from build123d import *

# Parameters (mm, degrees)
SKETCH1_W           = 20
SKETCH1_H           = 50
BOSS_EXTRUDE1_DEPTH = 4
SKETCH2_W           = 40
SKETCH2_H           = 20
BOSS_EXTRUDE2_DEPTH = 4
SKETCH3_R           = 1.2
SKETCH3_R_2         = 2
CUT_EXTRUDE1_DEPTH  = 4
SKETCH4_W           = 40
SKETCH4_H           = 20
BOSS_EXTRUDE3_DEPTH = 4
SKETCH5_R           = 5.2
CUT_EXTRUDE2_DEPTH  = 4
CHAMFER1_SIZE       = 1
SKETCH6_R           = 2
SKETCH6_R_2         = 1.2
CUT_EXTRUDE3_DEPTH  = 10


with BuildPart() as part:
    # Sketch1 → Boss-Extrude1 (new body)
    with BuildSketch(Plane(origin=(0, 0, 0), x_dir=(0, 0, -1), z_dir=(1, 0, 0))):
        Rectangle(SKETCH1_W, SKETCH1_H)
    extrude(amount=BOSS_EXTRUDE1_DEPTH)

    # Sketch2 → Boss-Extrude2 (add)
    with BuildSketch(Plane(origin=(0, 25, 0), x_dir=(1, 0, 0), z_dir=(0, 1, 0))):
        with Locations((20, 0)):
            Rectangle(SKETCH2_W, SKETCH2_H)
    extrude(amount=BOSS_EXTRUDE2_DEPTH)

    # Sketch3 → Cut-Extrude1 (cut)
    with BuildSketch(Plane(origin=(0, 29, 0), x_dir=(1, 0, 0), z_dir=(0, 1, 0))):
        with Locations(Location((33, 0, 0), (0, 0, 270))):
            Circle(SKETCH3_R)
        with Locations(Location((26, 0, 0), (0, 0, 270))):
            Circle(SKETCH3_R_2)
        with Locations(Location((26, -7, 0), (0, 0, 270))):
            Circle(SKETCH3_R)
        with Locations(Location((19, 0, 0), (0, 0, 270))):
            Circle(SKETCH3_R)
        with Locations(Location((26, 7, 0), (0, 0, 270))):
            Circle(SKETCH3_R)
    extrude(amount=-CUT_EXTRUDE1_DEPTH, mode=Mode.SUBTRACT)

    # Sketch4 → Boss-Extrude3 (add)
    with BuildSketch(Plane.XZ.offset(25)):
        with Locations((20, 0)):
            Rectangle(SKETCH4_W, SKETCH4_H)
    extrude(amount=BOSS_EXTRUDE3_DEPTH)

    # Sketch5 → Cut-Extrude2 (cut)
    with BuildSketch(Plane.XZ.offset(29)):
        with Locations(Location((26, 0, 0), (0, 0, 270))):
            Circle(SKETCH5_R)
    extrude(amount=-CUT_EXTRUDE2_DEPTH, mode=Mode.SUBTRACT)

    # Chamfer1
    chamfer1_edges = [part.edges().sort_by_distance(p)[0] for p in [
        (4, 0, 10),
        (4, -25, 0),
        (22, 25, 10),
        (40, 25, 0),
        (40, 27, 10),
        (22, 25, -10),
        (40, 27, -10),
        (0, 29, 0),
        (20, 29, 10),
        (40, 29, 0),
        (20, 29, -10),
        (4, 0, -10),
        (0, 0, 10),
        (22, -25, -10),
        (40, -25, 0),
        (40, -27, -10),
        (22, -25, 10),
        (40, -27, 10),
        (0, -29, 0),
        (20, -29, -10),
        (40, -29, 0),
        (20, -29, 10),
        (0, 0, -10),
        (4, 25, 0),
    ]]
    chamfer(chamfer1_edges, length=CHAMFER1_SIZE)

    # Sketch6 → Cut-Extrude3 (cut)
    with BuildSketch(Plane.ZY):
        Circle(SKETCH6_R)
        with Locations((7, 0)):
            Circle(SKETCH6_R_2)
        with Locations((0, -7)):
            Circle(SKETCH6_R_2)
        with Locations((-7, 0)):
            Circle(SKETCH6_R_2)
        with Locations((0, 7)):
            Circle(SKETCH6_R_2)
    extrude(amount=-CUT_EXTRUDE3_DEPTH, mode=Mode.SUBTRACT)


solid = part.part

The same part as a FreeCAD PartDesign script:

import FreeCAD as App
import Part
import Sketcher
Q = App.Units.Quantity


def edges_at(feature, points):
    """Names of the edges that pass closest to the given points."""
    edges = feature.Shape.Edges
    near = lambda p: min(range(len(edges)), key=lambda i: edges[i].distToShape(Part.Vertex(*p))[0])
    return sorted({f"Edge{near(p) + 1}" for p in points})


def add_polygon(sketch, points):
    """Adds a closed chain of lines whose ends are joined by coincident constraints."""
    first, n = sketch.GeometryCount, len(points)
    for a, b in zip(points, points[1:] + points[:1]):
        sketch.addGeometry(Part.LineSegment(App.Vector(*a, 0), App.Vector(*b, 0)), False)
    for i in range(n):
        sketch.addConstraint(Sketcher.Constraint("Coincident", first + i, 2, first + (i + 1) % n, 1))

doc = App.newDocument("Part")
params = doc.addObject("Spreadsheet::Sheet", "Params")
for row, (alias, value) in enumerate([
    ("sketch1_width", "50 mm"),
    ("sketch1_height", "20 mm"),
    ("pad1_length", "4 mm"),
    ("sketch2_width", "40 mm"),
    ("sketch2_height", "20 mm"),
    ("pad2_length", "4 mm"),
    ("sketch3_diameter", "4 mm"),
    ("sketch3_diameter2", "2.4 mm"),
    ("pocket1_length", "4 mm"),
    ("sketch4_width", "40 mm"),
    ("sketch4_height", "20 mm"),
    ("pad3_length", "4 mm"),
    ("sketch5_diameter", "10.4 mm"),
    ("pocket2_length", "4 mm"),
    ("chamfer_size", "1 mm"),
    ("sketch6_diameter", "4 mm"),
    ("sketch6_diameter2", "2.4 mm"),
    ("pocket3_length", "10 mm"),
], start=1):
    params.set(f"A{row}", alias)
    params.set(f"B{row}", "=" + value)
    params.setAlias(f"B{row}", alias)

body = doc.addObject("PartDesign::Body", "Body")

# Sketch on YZ plane
sketch1 = doc.addObject("Sketcher::SketchObject", "Sketch")
body.addObject(sketch1)
sketch1.AttachmentSupport = (doc.YZ_Plane, [""])
sketch1.MapMode = "FlatFace"
add_polygon(sketch1, [(25, 10), (-25, 10), (-25, -10), (25, -10)])  # lines 0-3
sketch1.addConstraint([
    Sketcher.Constraint("Horizontal", 0),
    Sketcher.Constraint("Vertical", 1),
    Sketcher.Constraint("Horizontal", 2),
    Sketcher.Constraint("Vertical", 3),
    Sketcher.Constraint("Symmetric", 0, 2, 2, 2, -1, 1),
    Sketcher.Constraint("DistanceX", 0, 2, 0, 1, Q("50 mm")),
    Sketcher.Constraint("DistanceY", 1, 2, 1, 1, Q("20 mm")),
])
sketch1.setExpression("Constraints[9]", "Params.sketch1_width")
sketch1.setExpression("Constraints[10]", "Params.sketch1_height")
pad1 = doc.addObject("PartDesign::Pad", "Pad")
body.addObject(pad1)
pad1.Profile = sketch1
pad1.setExpression("Length", "Params.pad1_length")

# Sketch on XZ plane
sketch2 = doc.addObject("Sketcher::SketchObject", "Sketch001")
body.addObject(sketch2)
sketch2.AttachmentSupport = (doc.XZ_Plane, [""])
sketch2.MapMode = "FlatFace"
sketch2.AttachmentOffset = App.Placement(App.Vector(0, 0, -25), App.Rotation())
add_polygon(sketch2, [(0, -10), (0, 10), (40, 10), (40, -10)])  # lines 0-3
sketch2.addConstraint([
    Sketcher.Constraint("Vertical", 0),
    Sketcher.Constraint("Horizontal", 1),
    Sketcher.Constraint("Vertical", 2),
    Sketcher.Constraint("Horizontal", 3),
    Sketcher.Constraint("Symmetric", 0, 2, 3, 2, -1, 1),
    Sketcher.Constraint("DistanceX", 1, 1, 1, 2, Q("40 mm")),
    Sketcher.Constraint("DistanceY", 0, 1, 0, 2, Q("20 mm")),
])
sketch2.setExpression("Constraints[9]", "Params.sketch2_width")
sketch2.setExpression("Constraints[10]", "Params.sketch2_height")
pad2 = doc.addObject("PartDesign::Pad", "Pad001")
body.addObject(pad2)
pad2.Profile = sketch2
pad2.setExpression("Length", "Params.pad2_length")
pad2.Reversed = True

# Sketch on XZ plane
sketch3 = doc.addObject("Sketcher::SketchObject", "Sketch002")
body.addObject(sketch3)
sketch3.AttachmentSupport = (doc.XZ_Plane, [""])
sketch3.MapMode = "FlatFace"
sketch3.AttachmentOffset = App.Placement(App.Vector(0, 0, -29), App.Rotation())
sketch3.addGeometry([
    Part.Circle(App.Vector(33, 0, 0), App.Vector(0, 0, 1), 1.2),  # 0
    Part.Circle(App.Vector(26, 0, 0), App.Vector(0, 0, 1), 2),  # 1
    Part.Circle(App.Vector(26, 7, 0), App.Vector(0, 0, 1), 1.2),  # 2
    Part.Circle(App.Vector(19, 0, 0), App.Vector(0, 0, 1), 1.2),  # 3
    Part.Circle(App.Vector(26, -7, 0), App.Vector(0, 0, 1), 1.2),  # 4
], False)
sketch3.addConstraint([
    Sketcher.Constraint("Equal", 0, 2),
    Sketcher.Constraint("Equal", 2, 3),
    Sketcher.Constraint("Equal", 3, 4),
    Sketcher.Constraint("Symmetric", 2, 3, 4, 3, -1),
    Sketcher.Constraint("PointOnObject", 0, 3, -1),
    Sketcher.Constraint("PointOnObject", 1, 3, -1),
    Sketcher.Constraint("PointOnObject", 3, 3, -1),
    Sketcher.Constraint("Vertical", 1, 3, 2, 3),
    Sketcher.Constraint("Diameter", 1, Q("4 mm")),
    Sketcher.Constraint("Diameter", 0, Q("2.4 mm")),
    Sketcher.Constraint("DistanceX", -1, 1, 0, 3, Q("33 mm")),
    Sketcher.Constraint("DistanceX", -1, 1, 1, 3, Q("26 mm")),
    Sketcher.Constraint("DistanceY", -1, 1, 2, 3, Q("7 mm")),
    Sketcher.Constraint("DistanceX", -1, 1, 3, 3, Q("19 mm")),
])
sketch3.setExpression("Constraints[8]", "Params.sketch3_diameter")
sketch3.setExpression("Constraints[9]", "Params.sketch3_diameter2")
pocket1 = doc.addObject("PartDesign::Pocket", "Pocket")
body.addObject(pocket1)
pocket1.Profile = sketch3
pocket1.setExpression("Length", "Params.pocket1_length")
pocket1.Reversed = True

# Sketch on XZ plane
sketch4 = doc.addObject("Sketcher::SketchObject", "Sketch003")
body.addObject(sketch4)
sketch4.AttachmentSupport = (doc.XZ_Plane, [""])
sketch4.MapMode = "FlatFace"
sketch4.AttachmentOffset = App.Placement(App.Vector(0, 0, 25), App.Rotation())
add_polygon(sketch4, [(0, 10), (0, -10), (40, -10), (40, 10)])  # lines 0-3
sketch4.addConstraint([
    Sketcher.Constraint("Vertical", 0),
    Sketcher.Constraint("Horizontal", 1),
    Sketcher.Constraint("Vertical", 2),
    Sketcher.Constraint("Horizontal", 3),
    Sketcher.Constraint("Symmetric", 0, 2, 3, 2, -1, 1),
    Sketcher.Constraint("DistanceX", 1, 1, 1, 2, Q("40 mm")),
    Sketcher.Constraint("DistanceY", 0, 2, 0, 1, Q("20 mm")),
])
sketch4.setExpression("Constraints[9]", "Params.sketch4_width")
sketch4.setExpression("Constraints[10]", "Params.sketch4_height")
pad3 = doc.addObject("PartDesign::Pad", "Pad002")
body.addObject(pad3)
pad3.Profile = sketch4
pad3.setExpression("Length", "Params.pad3_length")

# Sketch on XZ plane
sketch5 = doc.addObject("Sketcher::SketchObject", "Sketch004")
body.addObject(sketch5)
sketch5.AttachmentSupport = (doc.XZ_Plane, [""])
sketch5.MapMode = "FlatFace"
sketch5.AttachmentOffset = App.Placement(App.Vector(0, 0, 29), App.Rotation())
sketch5.addGeometry(Part.Circle(App.Vector(26, 0, 0), App.Vector(0, 0, 1), 5), False)
sketch5.addConstraint([
    Sketcher.Constraint("PointOnObject", 0, 3, -1),
    Sketcher.Constraint("Diameter", 0, Q("10.4 mm")),
    Sketcher.Constraint("DistanceX", -1, 1, 0, 3, Q("26 mm")),
])
sketch5.setExpression("Constraints[1]", "Params.sketch5_diameter")
pocket2 = doc.addObject("PartDesign::Pocket", "Pocket001")
body.addObject(pocket2)
pocket2.Profile = sketch5
pocket2.setExpression("Length", "Params.pocket2_length")
doc.recompute()

chamfer = doc.addObject("PartDesign::Chamfer", "Chamfer")
body.addObject(chamfer)
chamfer.Base = (pocket2, edges_at(pocket2, [
    (4, 0, 10),
    (4, -25, 0),
    (22, 25, 10),
    (40, 25, 0),
    (40, 27, 10),
    (22, 25, -10),
    (40, 27, -10),
    (0, 29, 0),
    (20, 29, 10),
    (40, 29, 0),
    (20, 29, -10),
    (4, 0, -10),
    (0, 0, 10),
    (22, -25, -10),
    (40, -25, 0),
    (40, -27, -10),
    (22, -25, 10),
    (40, -27, 10),
    (0, -29, 0),
    (20, -29, -10),
    (40, -29, 0),
    (20, -29, 10),
    (0, 0, -10),
    (4, 25, 0),
]))
chamfer.setExpression("Size", "Params.chamfer_size")

# Sketch on YZ plane
sketch6 = doc.addObject("Sketcher::SketchObject", "Sketch005")
body.addObject(sketch6)
sketch6.AttachmentSupport = (doc.YZ_Plane, [""])
sketch6.MapMode = "FlatFace"
sketch6.addGeometry([
    Part.Circle(App.Vector(0, 0, 0), App.Vector(0, 0, 1), 2),  # 0
    Part.Circle(App.Vector(0, 7, 0), App.Vector(0, 0, 1), 1.2),  # 1
    Part.Circle(App.Vector(-7, 0, 0), App.Vector(0, 0, 1), 1.2),  # 2
    Part.Circle(App.Vector(0, -7, 0), App.Vector(0, 0, 1), 1.2),  # 3
    Part.Circle(App.Vector(7, 0, 0), App.Vector(0, 0, 1), 1.2),  # 4
], False)
sketch6.addConstraint([
    Sketcher.Constraint("Coincident", 0, 3, -1, 1),
    Sketcher.Constraint("Equal", 1, 2),
    Sketcher.Constraint("Equal", 2, 3),
    Sketcher.Constraint("Equal", 3, 4),
    Sketcher.Constraint("Symmetric", 1, 3, 3, 3, -1, 1),
    Sketcher.Constraint("Symmetric", 2, 3, 4, 3, -1, 1),
    Sketcher.Constraint("PointOnObject", 1, 3, -2),
    Sketcher.Constraint("PointOnObject", 2, 3, -1),
    Sketcher.Constraint("Diameter", 0, Q("4 mm")),
    Sketcher.Constraint("Diameter", 1, Q("2.4 mm")),
    Sketcher.Constraint("DistanceY", -1, 1, 1, 3, Q("7 mm")),
    Sketcher.Constraint("DistanceX", 2, 3, -1, 1, Q("7 mm")),
])
sketch6.setExpression("Constraints[8]", "Params.sketch6_diameter")
sketch6.setExpression("Constraints[9]", "Params.sketch6_diameter2")
pocket3 = doc.addObject("PartDesign::Pocket", "Pocket002")
body.addObject(pocket3)
pocket3.Profile = sketch6
pocket3.setExpression("Length", "Params.pocket3_length")
pocket3.Reversed = True

doc.recompute()
